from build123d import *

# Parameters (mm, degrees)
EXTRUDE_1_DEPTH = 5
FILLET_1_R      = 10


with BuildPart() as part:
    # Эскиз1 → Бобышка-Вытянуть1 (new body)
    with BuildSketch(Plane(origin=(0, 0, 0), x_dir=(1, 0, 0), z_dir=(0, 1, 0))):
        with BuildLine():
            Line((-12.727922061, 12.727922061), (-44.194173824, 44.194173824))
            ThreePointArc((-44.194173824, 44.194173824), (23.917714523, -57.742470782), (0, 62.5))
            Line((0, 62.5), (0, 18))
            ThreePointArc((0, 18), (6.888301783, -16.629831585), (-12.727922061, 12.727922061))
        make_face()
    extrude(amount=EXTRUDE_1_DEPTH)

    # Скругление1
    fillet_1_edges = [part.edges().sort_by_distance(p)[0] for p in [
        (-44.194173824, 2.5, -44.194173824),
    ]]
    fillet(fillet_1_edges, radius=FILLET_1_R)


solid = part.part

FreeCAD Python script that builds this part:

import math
import FreeCAD as App
import Part
import Sketcher
Q = App.Units.Quantity


def edges_at(feature, points):
    """Names of the edges that pass closest to the given points."""
    edges = feature.Shape.Edges
    near = lambda p: min(range(len(edges)), key=lambda i: edges[i].distToShape(Part.Vertex(*p))[0])
    return sorted({f"Edge{near(p) + 1}" for p in points})

doc = App.newDocument("Part")
body = doc.addObject("PartDesign::Body", "Body")

# Sketch on XZ plane
sketch1 = doc.addObject("Sketcher::SketchObject", "Sketch")
body.addObject(sketch1)
sketch1.AttachmentSupport = (doc.XZ_Plane, [""])
sketch1.MapMode = "FlatFace"
sketch1.addGeometry([
    Part.LineSegment(App.Vector(-12.727922, -12.727922, 0), App.Vector(-44.194174, -44.194174, 0)),
    Part.ArcOfCircle(Part.Circle(App.Vector(0, 0, 0), App.Vector(0, 0, 1), 62.5), math.radians(-90), math.radians(225)),
    Part.LineSegment(App.Vector(0, -62.5, 0), App.Vector(0, -18, 0)),
    Part.ArcOfCircle(Part.Circle(App.Vector(0, 0, 0), App.Vector(0, 0, 1), 18), math.radians(-90), math.radians(225)),
], False)
sketch1.addConstraint([
    Sketcher.Constraint("Coincident", 0, 2, 1, 2),
    Sketcher.Constraint("Coincident", 1, 1, 2, 1),
    Sketcher.Constraint("Coincident", 2, 2, 3, 1),
    Sketcher.Constraint("Coincident", 3, 2, 0, 1),
    Sketcher.Constraint("Vertical", 2),
    Sketcher.Constraint("Coincident", 1, 3, -1, 1),
    Sketcher.Constraint("Coincident", 3, 3, -1, 1),
    Sketcher.Constraint("PointOnObject", 1, 1, -2),
    Sketcher.Constraint("Radius", 3, Q("18 mm")),
    Sketcher.Constraint("Radius", 1, Q("62.5 mm")),
    Sketcher.Constraint("Angle", 0, Q("-135 deg")),
    Sketcher.Constraint("DistanceX", 0, 2, -1, 1, Q("44.194174 mm")),
])
pad1 = doc.addObject("PartDesign::Pad", "Pad")
body.addObject(pad1)
pad1.Profile = sketch1
pad1.Length = 5
pad1.Reversed = True
doc.recompute()

fillet = doc.addObject("PartDesign::Fillet", "Fillet")
body.addObject(fillet)
fillet.Base = (pad1, edges_at(pad1, [(-44.194, 2.5, -44.194)]))
fillet.Radius = 10

doc.recompute()
